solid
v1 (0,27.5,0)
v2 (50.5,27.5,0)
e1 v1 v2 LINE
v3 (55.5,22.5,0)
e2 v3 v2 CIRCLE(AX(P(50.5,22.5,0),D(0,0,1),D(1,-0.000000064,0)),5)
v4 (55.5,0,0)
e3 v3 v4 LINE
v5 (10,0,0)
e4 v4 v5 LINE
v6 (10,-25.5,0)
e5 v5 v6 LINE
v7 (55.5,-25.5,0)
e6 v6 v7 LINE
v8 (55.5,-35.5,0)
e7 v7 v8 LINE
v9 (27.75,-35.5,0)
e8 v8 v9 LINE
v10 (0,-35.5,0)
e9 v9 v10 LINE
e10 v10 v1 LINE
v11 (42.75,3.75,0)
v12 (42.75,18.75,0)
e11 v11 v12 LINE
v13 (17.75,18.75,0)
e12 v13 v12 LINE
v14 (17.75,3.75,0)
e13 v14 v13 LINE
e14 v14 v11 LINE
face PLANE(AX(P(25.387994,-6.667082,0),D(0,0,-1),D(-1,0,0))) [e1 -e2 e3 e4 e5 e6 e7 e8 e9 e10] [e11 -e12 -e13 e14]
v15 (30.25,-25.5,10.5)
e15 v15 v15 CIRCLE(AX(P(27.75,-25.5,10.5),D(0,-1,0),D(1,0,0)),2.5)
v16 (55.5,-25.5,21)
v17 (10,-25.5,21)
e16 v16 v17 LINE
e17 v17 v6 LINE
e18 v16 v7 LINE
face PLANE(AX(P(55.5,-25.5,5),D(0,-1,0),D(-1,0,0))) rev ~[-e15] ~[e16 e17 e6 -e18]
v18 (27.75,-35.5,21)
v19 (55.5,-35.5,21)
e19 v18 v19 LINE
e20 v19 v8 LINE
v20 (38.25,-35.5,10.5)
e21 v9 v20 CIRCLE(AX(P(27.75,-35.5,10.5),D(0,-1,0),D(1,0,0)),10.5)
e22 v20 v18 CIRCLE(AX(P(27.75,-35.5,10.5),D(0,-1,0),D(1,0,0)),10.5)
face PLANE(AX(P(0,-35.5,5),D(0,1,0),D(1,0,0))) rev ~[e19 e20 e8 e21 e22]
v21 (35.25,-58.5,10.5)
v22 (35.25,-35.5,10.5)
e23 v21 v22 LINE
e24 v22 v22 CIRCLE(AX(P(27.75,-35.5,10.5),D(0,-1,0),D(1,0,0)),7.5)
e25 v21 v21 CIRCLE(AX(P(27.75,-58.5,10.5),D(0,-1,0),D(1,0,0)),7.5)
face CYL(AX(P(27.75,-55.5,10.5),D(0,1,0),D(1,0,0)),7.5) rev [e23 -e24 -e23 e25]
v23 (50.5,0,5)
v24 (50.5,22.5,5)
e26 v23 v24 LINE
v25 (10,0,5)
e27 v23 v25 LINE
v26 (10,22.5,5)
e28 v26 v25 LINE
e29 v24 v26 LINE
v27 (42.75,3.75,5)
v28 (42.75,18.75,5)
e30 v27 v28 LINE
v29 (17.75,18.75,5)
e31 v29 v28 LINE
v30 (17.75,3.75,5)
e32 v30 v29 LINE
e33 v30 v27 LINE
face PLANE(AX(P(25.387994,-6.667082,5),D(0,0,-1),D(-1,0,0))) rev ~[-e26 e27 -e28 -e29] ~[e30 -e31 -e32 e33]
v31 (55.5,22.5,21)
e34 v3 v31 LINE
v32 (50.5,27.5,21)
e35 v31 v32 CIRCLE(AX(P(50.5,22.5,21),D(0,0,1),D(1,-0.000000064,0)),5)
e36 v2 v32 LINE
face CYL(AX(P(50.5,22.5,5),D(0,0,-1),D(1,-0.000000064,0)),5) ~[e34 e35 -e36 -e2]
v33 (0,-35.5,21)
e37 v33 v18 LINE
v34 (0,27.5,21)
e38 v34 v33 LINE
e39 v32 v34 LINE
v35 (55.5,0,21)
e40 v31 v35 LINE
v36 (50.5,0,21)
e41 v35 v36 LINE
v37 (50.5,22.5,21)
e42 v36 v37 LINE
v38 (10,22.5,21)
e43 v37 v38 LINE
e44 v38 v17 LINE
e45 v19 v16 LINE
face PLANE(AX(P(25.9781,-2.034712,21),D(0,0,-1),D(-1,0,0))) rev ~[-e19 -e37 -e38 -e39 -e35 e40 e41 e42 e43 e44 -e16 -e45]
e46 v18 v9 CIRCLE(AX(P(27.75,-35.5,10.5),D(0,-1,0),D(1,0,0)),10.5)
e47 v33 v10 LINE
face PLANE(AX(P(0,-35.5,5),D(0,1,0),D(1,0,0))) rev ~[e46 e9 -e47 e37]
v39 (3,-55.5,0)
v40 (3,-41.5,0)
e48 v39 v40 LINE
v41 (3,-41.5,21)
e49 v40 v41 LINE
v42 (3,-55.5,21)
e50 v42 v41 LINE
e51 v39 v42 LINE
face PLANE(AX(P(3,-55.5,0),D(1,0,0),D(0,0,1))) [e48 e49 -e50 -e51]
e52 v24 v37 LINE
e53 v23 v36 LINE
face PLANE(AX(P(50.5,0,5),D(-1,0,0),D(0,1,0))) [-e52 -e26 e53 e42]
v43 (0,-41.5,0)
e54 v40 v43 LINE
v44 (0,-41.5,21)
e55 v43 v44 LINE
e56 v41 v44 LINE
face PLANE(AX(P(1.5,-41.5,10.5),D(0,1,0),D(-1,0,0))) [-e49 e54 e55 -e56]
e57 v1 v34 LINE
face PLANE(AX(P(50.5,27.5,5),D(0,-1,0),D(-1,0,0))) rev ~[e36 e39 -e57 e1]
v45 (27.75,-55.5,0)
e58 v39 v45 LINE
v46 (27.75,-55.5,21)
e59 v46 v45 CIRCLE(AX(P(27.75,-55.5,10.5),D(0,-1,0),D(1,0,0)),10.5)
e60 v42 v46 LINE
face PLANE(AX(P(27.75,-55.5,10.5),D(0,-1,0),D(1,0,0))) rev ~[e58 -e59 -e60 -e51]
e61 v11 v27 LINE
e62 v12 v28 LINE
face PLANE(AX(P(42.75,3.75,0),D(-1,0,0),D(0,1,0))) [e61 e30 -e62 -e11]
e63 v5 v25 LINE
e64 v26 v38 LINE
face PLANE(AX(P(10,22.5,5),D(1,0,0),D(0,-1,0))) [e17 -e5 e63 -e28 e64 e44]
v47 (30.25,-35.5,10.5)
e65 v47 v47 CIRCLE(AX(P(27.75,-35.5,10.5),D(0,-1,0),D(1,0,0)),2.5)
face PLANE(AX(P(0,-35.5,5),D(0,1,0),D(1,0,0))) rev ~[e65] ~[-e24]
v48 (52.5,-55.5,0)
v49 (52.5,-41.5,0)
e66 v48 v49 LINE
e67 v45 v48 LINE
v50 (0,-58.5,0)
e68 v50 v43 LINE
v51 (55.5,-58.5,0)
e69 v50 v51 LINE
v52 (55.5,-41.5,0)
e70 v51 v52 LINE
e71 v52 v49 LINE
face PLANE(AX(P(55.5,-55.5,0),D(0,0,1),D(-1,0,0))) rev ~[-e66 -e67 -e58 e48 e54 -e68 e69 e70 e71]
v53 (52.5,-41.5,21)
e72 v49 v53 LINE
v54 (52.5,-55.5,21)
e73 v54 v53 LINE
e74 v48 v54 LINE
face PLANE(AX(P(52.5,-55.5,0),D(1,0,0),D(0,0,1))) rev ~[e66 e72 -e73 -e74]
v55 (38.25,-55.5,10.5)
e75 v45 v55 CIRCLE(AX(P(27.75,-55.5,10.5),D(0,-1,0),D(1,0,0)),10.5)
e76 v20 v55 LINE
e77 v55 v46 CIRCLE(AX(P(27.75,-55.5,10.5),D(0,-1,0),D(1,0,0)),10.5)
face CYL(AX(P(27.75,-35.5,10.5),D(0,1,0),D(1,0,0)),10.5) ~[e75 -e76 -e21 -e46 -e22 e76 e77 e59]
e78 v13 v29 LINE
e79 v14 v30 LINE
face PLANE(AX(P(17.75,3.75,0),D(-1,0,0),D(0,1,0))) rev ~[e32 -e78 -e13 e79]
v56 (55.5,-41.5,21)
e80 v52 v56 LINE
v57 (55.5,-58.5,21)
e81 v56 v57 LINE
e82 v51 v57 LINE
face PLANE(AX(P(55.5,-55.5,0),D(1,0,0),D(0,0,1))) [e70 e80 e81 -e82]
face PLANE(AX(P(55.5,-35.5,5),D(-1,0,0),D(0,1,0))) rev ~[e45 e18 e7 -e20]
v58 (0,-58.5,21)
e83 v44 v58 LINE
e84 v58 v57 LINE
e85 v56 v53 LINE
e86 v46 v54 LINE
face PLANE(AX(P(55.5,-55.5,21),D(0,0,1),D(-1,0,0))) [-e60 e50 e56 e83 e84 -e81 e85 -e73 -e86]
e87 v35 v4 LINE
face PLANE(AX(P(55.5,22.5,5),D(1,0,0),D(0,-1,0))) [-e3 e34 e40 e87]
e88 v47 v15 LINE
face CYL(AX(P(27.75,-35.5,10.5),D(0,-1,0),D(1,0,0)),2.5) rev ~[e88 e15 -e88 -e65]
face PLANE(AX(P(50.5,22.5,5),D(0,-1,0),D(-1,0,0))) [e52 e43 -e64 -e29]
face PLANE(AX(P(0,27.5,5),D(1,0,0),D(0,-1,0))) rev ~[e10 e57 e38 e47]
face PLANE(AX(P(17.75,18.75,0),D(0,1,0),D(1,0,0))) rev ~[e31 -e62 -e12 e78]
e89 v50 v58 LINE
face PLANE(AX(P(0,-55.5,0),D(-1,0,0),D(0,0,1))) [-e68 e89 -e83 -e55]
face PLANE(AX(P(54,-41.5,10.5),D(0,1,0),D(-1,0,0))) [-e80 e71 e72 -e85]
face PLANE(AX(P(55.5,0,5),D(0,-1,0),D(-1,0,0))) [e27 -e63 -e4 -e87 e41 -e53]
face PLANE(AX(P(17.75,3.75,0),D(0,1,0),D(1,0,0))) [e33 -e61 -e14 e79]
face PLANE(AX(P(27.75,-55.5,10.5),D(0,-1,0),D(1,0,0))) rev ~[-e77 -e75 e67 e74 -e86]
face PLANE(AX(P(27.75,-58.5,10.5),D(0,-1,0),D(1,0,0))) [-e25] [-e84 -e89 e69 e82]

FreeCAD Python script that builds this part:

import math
import FreeCAD as App
import Part
import Sketcher

V = App.Vector

doc = App.newDocument("Part")
params = doc.addObject("Spreadsheet::Sheet", "Params")
for row, (alias, value) in enumerate([
    ("sketch1_radius", "5 mm"),
    ("sketch1_width", "25 mm"),
    ("sketch1_height", "63 mm"),
    ("sketch1_height2", "10 mm"),
    ("sketch1_height3", "15 mm"),
    ("pad1_length", "5 mm"),
    ("sketch2_radius", "5 mm"),
    ("sketch2_height", "63 mm"),
    ("sketch2_height2", "10 mm"),
    ("sketch2_width", "50.5 mm"),
    ("sketch2_width2", "45.5 mm"),
    ("pad2_length", "16 mm"),
    ("sketch3_diameter", "5 mm"),
    ("pocket1_length", "15 mm"),
    ("sketch4_diameter", "21 mm"),
    ("sketch4_diameter2", "15 mm"),
    ("pad3_length", "20 mm"),
    ("sketch5_diameter", "15 mm"),
    ("sketch5_height", "21 mm"),
    ("sketch5_width", "55.5 mm"),
    ("pad4_length", "3 mm"),
    ("sketch6_width", "3 mm"),
    ("sketch6_height", "21 mm"),
    ("pad5_length", "14 mm"),
], start=1):
    params.set(f"A{row}", alias)
    params.set(f"B{row}", "=" + value)
    params.setAlias(f"B{row}", alias)

body = doc.addObject("PartDesign::Body", "Body")

# Sketch on XY plane
sketch1 = doc.addObject("Sketcher::SketchObject", "Sketch")
body.addObject(sketch1)
sketch1.AttachmentSupport = (doc.XY_Plane, [""])
sketch1.MapMode = "FlatFace"
sketch1.addGeometry([
    Part.LineSegment(V(0, 27.5, 0), V(0, -35.5, 0)),  # 0
    Part.LineSegment(V(0, -35.5, 0), V(55.5, -35.5, 0)),  # 1
    Part.LineSegment(V(55.5, -35.5, 0), V(55.5, -25.5, 0)),  # 2
    Part.LineSegment(V(55.5, -25.5, 0), V(10, -25.5, 0)),  # 3
    Part.LineSegment(V(10, -25.5, 0), V(10, 0, 0)),  # 4
    Part.LineSegment(V(10, 0, 0), V(55.5, 0, 0)),  # 5
    Part.LineSegment(V(55.5, 0, 0), V(55.5, 22.5, 0)),  # 6
    Part.ArcOfCircle(Part.Circle(V(50.5, 22.5, 0), V(0, 0, 1), 5), math.radians(0), math.radians(90)),  # 7
    Part.LineSegment(V(50.5, 27.5, 0), V(0, 27.5, 0)),  # 8
    Part.LineSegment(V(17.8, 3.8, 0), V(17.8, 18.8, 0)),  # 9
    Part.LineSegment(V(17.8, 18.8, 0), V(42.8, 18.8, 0)),  # 10
    Part.LineSegment(V(42.8, 18.8, 0), V(42.8, 3.8, 0)),  # 11
    Part.LineSegment(V(42.8, 3.8, 0), V(17.8, 3.8, 0)),  # 12
], False)
sketch1.addConstraint([
    Sketcher.Constraint("Coincident", 0, 2, 1, 1),
    Sketcher.Constraint("Coincident", 1, 2, 2, 1),
    Sketcher.Constraint("Coincident", 2, 2, 3, 1),
    Sketcher.Constraint("Coincident", 3, 2, 4, 1),
    Sketcher.Constraint("Coincident", 4, 2, 5, 1),
    Sketcher.Constraint("Coincident", 5, 2, 6, 1),
    Sketcher.Constraint("Tangent", 6, 2, 7, 1),
    Sketcher.Constraint("Tangent", 7, 2, 8, 1),
    Sketcher.Constraint("Coincident", 8, 2, 0, 1),
    Sketcher.Constraint("Coincident", 9, 2, 10, 1),
    Sketcher.Constraint("Coincident", 10, 2, 11, 1),
    Sketcher.Constraint("Coincident", 11, 2, 12, 1),
    Sketcher.Constraint("Coincident", 12, 2, 9, 1),
    Sketcher.Constraint("Vertical", 0),
    Sketcher.Constraint("Horizontal", 1),
    Sketcher.Constraint("Vertical", 2),
    Sketcher.Constraint("Horizontal", 3),
    Sketcher.Constraint("Vertical", 4),
    Sketcher.Constraint("Horizontal", 5),
    Sketcher.Constraint("Vertical", 6),
    Sketcher.Constraint("Horizontal", 8),
    Sketcher.Constraint("Vertical", 9),
    Sketcher.Constraint("Horizontal", 10),
    Sketcher.Constraint("Vertical", 11),
    Sketcher.Constraint("Horizontal", 12),
    Sketcher.Constraint("PointOnObject", 0, 2, -2),
    Sketcher.Constraint("PointOnObject", 4, 2, -1),
    Sketcher.Constraint("Vertical", 2, 2, 5, 2),
    Sketcher.Constraint("Radius", 7, 5.0),
    Sketcher.Constraint("DistanceX", 10, 1, 10, 2, 25.0),
    Sketcher.Constraint("DistanceY", 0, 2, 0, 1, 63.0),
    Sketcher.Constraint("DistanceY", 2, 1, 2, 2, 10.0),
    Sketcher.Constraint("DistanceY", 9, 1, 9, 2, 15.0),
    Sketcher.Constraint("DistanceX", 1, 1, 1, 2, 55.5),
    Sketcher.Constraint("DistanceX", 3, 2, 3, 1, 45.5),
    Sketcher.Constraint("DistanceY", 4, 1, 4, 2, 25.5),
    Sketcher.Constraint("DistanceX", -1, 1, 9, 2, 17.75),
    Sketcher.Constraint("DistanceY", -1, 1, 9, 2, 18.75),
])
sketch1.setExpression("Constraints[28]", "Params.sketch1_radius")
sketch1.setExpression("Constraints[29]", "Params.sketch1_width")
sketch1.setExpression("Constraints[30]", "Params.sketch1_height")
sketch1.setExpression("Constraints[31]", "Params.sketch1_height2")
sketch1.setExpression("Constraints[32]", "Params.sketch1_height3")
pad1 = doc.addObject("PartDesign::Pad", "Pad")
body.addObject(pad1)
pad1.Profile = sketch1
pad1.setExpression("Length", "Params.pad1_length")

# Sketch on XY plane
sketch2 = doc.addObject("Sketcher::SketchObject", "Sketch001")
body.addObject(sketch2)
sketch2.AttachmentSupport = (doc.XY_Plane, [""])
sketch2.MapMode = "FlatFace"
sketch2.AttachmentOffset = App.Placement(V(0, 0, 5), App.Rotation())
sketch2.addGeometry([
    Part.LineSegment(V(55.5, 0, 0), V(55.5, 22.5, 0)),  # 0
    Part.ArcOfCircle(Part.Circle(V(50.5, 22.5, 0), V(0, 0, 1), 5), math.radians(0), math.radians(90)),  # 1
    Part.LineSegment(V(50.5, 27.5, 0), V(0, 27.5, 0)),  # 2
    Part.LineSegment(V(0, 27.5, 0), V(0, -35.5, 0)),  # 3
    Part.LineSegment(V(0, -35.5, 0), V(55.5, -35.5, 0)),  # 4
    Part.LineSegment(V(55.5, -35.5, 0), V(55.5, -25.5, 0)),  # 5
    Part.LineSegment(V(55.5, -25.5, 0), V(10, -25.5, 0)),  # 6
    Part.LineSegment(V(10, -25.5, 0), V(10, 22.5, 0)),  # 7
    Part.LineSegment(V(10, 22.5, 0), V(50.5, 22.5, 0)),  # 8
    Part.LineSegment(V(50.5, 22.5, 0), V(50.5, 0, 0)),  # 9
    Part.LineSegment(V(50.5, 0, 0), V(55.5, 0, 0)),  # 10
], False)
sketch2.addConstraint([
    Sketcher.Constraint("Tangent", 0, 2, 1, 1),
    Sketcher.Constraint("Tangent", 1, 2, 2, 1),
    Sketcher.Constraint("Coincident", 2, 2, 3, 1),
    Sketcher.Constraint("Coincident", 3, 2, 4, 1),
    Sketcher.Constraint("Coincident", 4, 2, 5, 1),
    Sketcher.Constraint("Coincident", 5, 2, 6, 1),
    Sketcher.Constraint("Coincident", 6, 2, 7, 1),
    Sketcher.Constraint("Coincident", 7, 2, 8, 1),
    Sketcher.Constraint("Coincident", 8, 2, 9, 1),
    Sketcher.Constraint("Coincident", 9, 2, 10, 1),
    Sketcher.Constraint("Coincident", 10, 2, 0, 1),
    Sketcher.Constraint("Vertical", 0),
    Sketcher.Constraint("Horizontal", 2),
    Sketcher.Constraint("Vertical", 3),
    Sketcher.Constraint("Horizontal", 4),
    Sketcher.Constraint("Vertical", 5),
    Sketcher.Constraint("Horizontal", 6),
    Sketcher.Constraint("Vertical", 7),
    Sketcher.Constraint("Horizontal", 8),
    Sketcher.Constraint("Vertical", 9),
    Sketcher.Constraint("Horizontal", 10),
    Sketcher.Constraint("Coincident", 8, 2, 1, 3),
    Sketcher.Constraint("PointOnObject", 2, 2, -2),
    Sketcher.Constraint("PointOnObject", 9, 2, -1),
    Sketcher.Constraint("Vertical", 0, 2, 4, 2),
    Sketcher.Constraint("Radius", 1, 5.0),
    Sketcher.Constraint("DistanceY", 3, 2, 3, 1, 63.0),
    Sketcher.Constraint("DistanceY", 5, 1, 5, 2, 10.0),
    Sketcher.Constraint("DistanceX", 2, 2, 2, 1, 50.5),
    Sketcher.Constraint("DistanceX", 6, 2, 6, 1, 45.5),
    Sketcher.Constraint("DistanceY", 0, 1, 0, 2, 22.5),
])
sketch2.setExpression("Constraints[25]", "Params.sketch2_radius")
sketch2.setExpression("Constraints[26]", "Params.sketch2_height")
sketch2.setExpression("Constraints[27]", "Params.sketch2_height2")
sketch2.setExpression("Constraints[28]", "Params.sketch2_width")
sketch2.setExpression("Constraints[29]", "Params.sketch2_width2")
pad2 = doc.addObject("PartDesign::Pad", "Pad001")
body.addObject(pad2)
pad2.Profile = sketch2
pad2.setExpression("Length", "Params.pad2_length")

# Sketch on XZ plane
sketch3 = doc.addObject("Sketcher::SketchObject", "Sketch002")
body.addObject(sketch3)
sketch3.AttachmentSupport = (doc.XZ_Plane, [""])
sketch3.MapMode = "FlatFace"
sketch3.AttachmentOffset = App.Placement(V(0, 0, 35.5), App.Rotation())
sketch3.addGeometry(Part.Circle(V(27.8, 10.5, 0), V(0, 0, 1), 2.5), False)
sketch3.addConstraint([
    Sketcher.Constraint("Diameter", 0, 5.0),
    Sketcher.Constraint("DistanceY", -1, 1, 0, 3, 10.5),
    Sketcher.Constraint("DistanceX", -1, 1, 0, 3, 27.75),
])
sketch3.setExpression("Constraints[0]", "Params.sketch3_diameter")
pocket1 = doc.addObject("PartDesign::Pocket", "Pocket")
body.addObject(pocket1)
pocket1.Profile = sketch3
pocket1.setExpression("Length", "Params.pocket1_length")

# Sketch on XZ plane
sketch4 = doc.addObject("Sketcher::SketchObject", "Sketch003")
body.addObject(sketch4)
sketch4.AttachmentSupport = (doc.XZ_Plane, [""])
sketch4.MapMode = "FlatFace"
sketch4.AttachmentOffset = App.Placement(V(0, 0, 35.5), App.Rotation())
sketch4.addGeometry([
    Part.Circle(V(28, 10, 0), V(0, 0, 1), 10),
    Part.Circle(V(28, 10, 0), V(0, 0, 1), 8),
], False)
sketch4.addConstraint([
    Sketcher.Constraint("Coincident", 1, 3, 0, 3),
    Sketcher.Constraint("Diameter", 0, 21.0),
    Sketcher.Constraint("Diameter", 1, 15.0),
    Sketcher.Constraint("DistanceY", -1, 1, 0, 3, 10.5),
    Sketcher.Constraint("DistanceX", -1, 1, 0, 3, 27.75),
])
sketch4.setExpression("Constraints[1]", "Params.sketch4_diameter")
sketch4.setExpression("Constraints[2]", "Params.sketch4_diameter2")
pad3 = doc.addObject("PartDesign::Pad", "Pad002")
body.addObject(pad3)
pad3.Profile = sketch4
pad3.setExpression("Length", "Params.pad3_length")

# Sketch on XZ plane
sketch5 = doc.addObject("Sketcher::SketchObject", "Sketch004")
body.addObject(sketch5)
sketch5.AttachmentSupport = (doc.XZ_Plane, [""])
sketch5.MapMode = "FlatFace"
sketch5.AttachmentOffset = App.Placement(V(0, 0, 55.5), App.Rotation())
sketch5.addGeometry([
    Part.LineSegment(V(0, 21, 0), V(0, 0, 0)),  # 0
    Part.LineSegment(V(0, 0, 0), V(56, 0, 0)),  # 1
    Part.LineSegment(V(56, 0, 0), V(56, 21, 0)),  # 2
    Part.LineSegment(V(56, 21, 0), V(0, 21, 0)),  # 3
    Part.Circle(V(28, 10, 0), V(0, 0, 1), 8),  # 4
], False)
sketch5.addConstraint([
    Sketcher.Constraint("Coincident", 0, 2, 1, 1),
    Sketcher.Constraint("Coincident", 1, 2, 2, 1),
    Sketcher.Constraint("Coincident", 2, 2, 3, 1),
    Sketcher.Constraint("Coincident", 3, 2, 0, 1),
    Sketcher.Constraint("Vertical", 0),
    Sketcher.Constraint("Horizontal", 1),
    Sketcher.Constraint("Vertical", 2),
    Sketcher.Constraint("Horizontal", 3),
    Sketcher.Constraint("Coincident", 0, 2, -1, 1),
    Sketcher.Constraint("Diameter", 4, 15.0),
    Sketcher.Constraint("DistanceY", 0, 2, 0, 1, 21.0),
    Sketcher.Constraint("DistanceX", 1, 1, 1, 2, 55.5),
    Sketcher.Constraint("DistanceY", -1, 1, 4, 3, 10.5),
    Sketcher.Constraint("DistanceX", -1, 1, 4, 3, 27.75),
])
sketch5.setExpression("Constraints[9]", "Params.sketch5_diameter")
sketch5.setExpression("Constraints[10]", "Params.sketch5_height")
sketch5.setExpression("Constraints[11]", "Params.sketch5_width")
pad4 = doc.addObject("PartDesign::Pad", "Pad003")
body.addObject(pad4)
pad4.Profile = sketch5
pad4.setExpression("Length", "Params.pad4_length")

# Sketch on XZ plane
sketch6 = doc.addObject("Sketcher::SketchObject", "Sketch005")
body.addObject(sketch6)
sketch6.AttachmentSupport = (doc.XZ_Plane, [""])
sketch6.MapMode = "FlatFace"
sketch6.AttachmentOffset = App.Placement(V(0, 0, 55.5), App.Rotation())
sketch6.addGeometry([
    Part.LineSegment(V(55.5, 21, 0), V(55.5, 0, 0)),  # 0
    Part.LineSegment(V(55.5, 0, 0), V(52.5, 0, 0)),  # 1
    Part.LineSegment(V(52.5, 0, 0), V(52.5, 21, 0)),  # 2
    Part.LineSegment(V(52.5, 21, 0), V(55.5, 21, 0)),  # 3
    Part.LineSegment(V(3, 21, 0), V(3, 0, 0)),  # 4
    Part.LineSegment(V(3, 0, 0), V(0, 0, 0)),  # 5
    Part.LineSegment(V(0, 0, 0), V(0, 21, 0)),  # 6
    Part.LineSegment(V(0, 21, 0), V(3, 21, 0)),  # 7
], False)
sketch6.addConstraint([
    Sketcher.Constraint("Coincident", 0, 2, 1, 1),
    Sketcher.Constraint("Coincident", 1, 2, 2, 1),
    Sketcher.Constraint("Coincident", 2, 2, 3, 1),
    Sketcher.Constraint("Coincident", 3, 2, 0, 1),
    Sketcher.Constraint("Coincident", 4, 2, 5, 1),
    Sketcher.Constraint("Coincident", 5, 2, 6, 1),
    Sketcher.Constraint("Coincident", 6, 2, 7, 1),
    Sketcher.Constraint("Coincident", 7, 2, 4, 1),
    Sketcher.Constraint("Vertical", 0),
    Sketcher.Constraint("Horizontal", 1),
    Sketcher.Constraint("Vertical", 2),
    Sketcher.Constraint("Horizontal", 3),
    Sketcher.Constraint("Vertical", 4),
    Sketcher.Constraint("Horizontal", 5),
    Sketcher.Constraint("Vertical", 6),
    Sketcher.Constraint("Horizontal", 7),
    Sketcher.Constraint("Coincident", 5, 2, -1, 1),
    Sketcher.Constraint("PointOnObject", 0, 2, -1),
    Sketcher.Constraint("Horizontal", 3, 2, 6, 2),
    Sketcher.Constraint("Equal", 3, 5),
    Sketcher.Constraint("DistanceX", 1, 2, 1, 1, 3.0),
    Sketcher.Constraint("DistanceY", 0, 2, 0, 1, 21.0),
    Sketcher.Constraint("DistanceX", -1, 1, 0, 2, 55.5),
])
sketch6.setExpression("Constraints[20]", "Params.sketch6_width")
sketch6.setExpression("Constraints[21]", "Params.sketch6_height")
pad5 = doc.addObject("PartDesign::Pad", "Pad004")
body.addObject(pad5)
pad5.Profile = sketch6
pad5.setExpression("Length", "Params.pad5_length")
pad5.Reversed = True

doc.recompute()
